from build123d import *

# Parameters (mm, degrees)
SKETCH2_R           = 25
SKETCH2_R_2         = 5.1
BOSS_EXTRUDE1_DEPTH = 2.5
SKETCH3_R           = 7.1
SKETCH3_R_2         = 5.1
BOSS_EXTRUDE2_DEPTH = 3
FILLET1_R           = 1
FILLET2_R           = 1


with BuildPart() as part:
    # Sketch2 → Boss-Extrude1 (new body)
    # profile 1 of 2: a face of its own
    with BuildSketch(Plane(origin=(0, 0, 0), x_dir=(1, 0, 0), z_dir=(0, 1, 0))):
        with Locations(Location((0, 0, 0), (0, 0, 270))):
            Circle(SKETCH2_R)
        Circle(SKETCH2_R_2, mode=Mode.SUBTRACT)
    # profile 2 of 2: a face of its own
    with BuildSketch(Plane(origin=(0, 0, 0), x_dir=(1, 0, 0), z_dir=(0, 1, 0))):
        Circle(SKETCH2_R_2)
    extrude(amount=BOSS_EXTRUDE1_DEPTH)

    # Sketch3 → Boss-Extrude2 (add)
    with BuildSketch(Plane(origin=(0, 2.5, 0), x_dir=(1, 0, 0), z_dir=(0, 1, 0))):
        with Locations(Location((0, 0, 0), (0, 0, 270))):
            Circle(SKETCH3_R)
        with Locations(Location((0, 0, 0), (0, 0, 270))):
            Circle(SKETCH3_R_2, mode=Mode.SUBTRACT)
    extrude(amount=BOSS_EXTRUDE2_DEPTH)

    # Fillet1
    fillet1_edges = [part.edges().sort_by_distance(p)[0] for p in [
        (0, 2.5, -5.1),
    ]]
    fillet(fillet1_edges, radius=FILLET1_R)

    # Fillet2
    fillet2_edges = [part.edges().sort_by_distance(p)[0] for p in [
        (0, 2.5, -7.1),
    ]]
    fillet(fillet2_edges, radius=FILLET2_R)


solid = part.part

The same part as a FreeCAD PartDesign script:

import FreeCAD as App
import Part
import Sketcher

V = App.Vector
Q = App.Units.Quantity


def edges_at(feature, points):
    """Names of the edges that pass closest to the given points."""
    edges = feature.Shape.Edges
    near = lambda p: min(range(len(edges)), key=lambda i: edges[i].distToShape(Part.Vertex(*p))[0])
    return sorted({f"Edge{near(p) + 1}" for p in points})

doc = App.newDocument("Part")
body = doc.addObject("PartDesign::Body", "Body")

# Sketch on XZ plane
sketch1 = body.newObject("Sketcher::SketchObject", "Sketch")
sketch1.AttachmentSupport = (doc.getObject("XZ_Plane"), [""])
sketch1.MapMode = "FlatFace"
sketch1.addGeometry(Part.Circle(V(0, 0, 0), V(0, 0, 1), 25), False)
sketch1.addConstraint(Sketcher.Constraint("Coincident", 0, 3, -1, 1))
sketch1.addConstraint(Sketcher.Constraint("Diameter", 0, Q("50 mm")))
pad1 = body.newObject("PartDesign::Pad", "Pad")
pad1.Profile = sketch1
pad1.Length = 2.5
pad1.Reversed = True

# Sketch on XZ plane
sketch2 = body.newObject("Sketcher::SketchObject", "Sketch001")
sketch2.AttachmentSupport = (doc.getObject("XZ_Plane"), [""])
sketch2.MapMode = "FlatFace"
sketch2.AttachmentOffset = App.Placement(V(0, 0, -2.5), App.Rotation())
sketch2.addGeometry(Part.Circle(V(0, 0, 0), V(0, 0, 1), 7.1), False)
sketch2.addGeometry(Part.Circle(V(0, 0, 0), V(0, 0, 1), 5.1), False)
sketch2.addConstraint(Sketcher.Constraint("Coincident", 0, 3, -1, 1))
sketch2.addConstraint(Sketcher.Constraint("Coincident", 1, 3, -1, 1))
sketch2.addConstraint(Sketcher.Constraint("Diameter", 0, Q("14.2 mm")))
sketch2.addConstraint(Sketcher.Constraint("Diameter", 1, Q("10.2 mm")))
pad2 = body.newObject("PartDesign::Pad", "Pad001")
pad2.Profile = sketch2
pad2.Length = 3
pad2.Reversed = True
doc.recompute()

fillet = body.newObject("PartDesign::Fillet", "Fillet")
fillet.Base = (pad2, edges_at(pad2, [(0, 2.5, -5.1)]))
fillet.Radius = 1
doc.recompute()

fillet2 = body.newObject("PartDesign::Fillet", "Fillet001")
fillet2.Base = (fillet, edges_at(fillet, [(0, 2.5, -7.1)]))
fillet2.Radius = 1

doc.recompute()
